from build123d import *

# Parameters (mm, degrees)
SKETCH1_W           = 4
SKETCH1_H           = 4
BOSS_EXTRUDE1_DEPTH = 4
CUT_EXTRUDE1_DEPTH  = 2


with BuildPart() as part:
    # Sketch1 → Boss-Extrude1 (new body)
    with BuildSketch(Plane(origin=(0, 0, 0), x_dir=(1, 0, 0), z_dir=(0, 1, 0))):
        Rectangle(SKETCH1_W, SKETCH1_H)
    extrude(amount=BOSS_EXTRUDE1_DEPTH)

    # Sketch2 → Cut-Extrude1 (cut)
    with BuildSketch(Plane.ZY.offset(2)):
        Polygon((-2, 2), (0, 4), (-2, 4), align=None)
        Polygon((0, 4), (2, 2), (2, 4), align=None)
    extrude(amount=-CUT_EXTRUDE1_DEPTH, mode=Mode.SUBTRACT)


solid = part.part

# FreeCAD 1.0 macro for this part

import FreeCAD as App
import Part
import Sketcher

V = App.Vector


def add_polygon(sketch, points):
    """Adds a closed chain of lines whose ends are joined by coincident constraints."""
    first, n = sketch.GeometryCount, len(points)
    for a, b in zip(points, points[1:] + points[:1]):
        sketch.addGeometry(Part.LineSegment(App.Vector(*a, 0), App.Vector(*b, 0)), False)
    for i in range(n):
        sketch.addConstraint(Sketcher.Constraint("Coincident", first + i, 2, first + (i + 1) % n, 1))

doc = App.newDocument("Part")
body = doc.addObject("PartDesign::Body", "Body")

sketch1 = doc.addObject("Sketcher::SketchObject", "Sketch")
body.addObject(sketch1)
sketch1.AttachmentSupport = (doc.XZ_Plane, [""])
sketch1.MapMode = "FlatFace"
add_polygon(sketch1, [(-2, -2), (-2, 2), (2, 2), (2, -2)])
sketch1.addConstraint([
    Sketcher.Constraint("Vertical", 0),
    Sketcher.Constraint("Horizontal", 1),
    Sketcher.Constraint("Vertical", 2),
    Sketcher.Constraint("Horizontal", 3),
    Sketcher.Constraint("Symmetric", 0, 2, 2, 2, -1, 1),
    Sketcher.Constraint("Equal", 3, 0),
    Sketcher.Constraint("DistanceX", 1, 1, 1, 2, 4.0),
])
pad1 = doc.addObject("PartDesign::Pad", "Pad")
body.addObject(pad1)
pad1.Profile = sketch1
pad1.Length = 4
pad1.Reversed = True

sketch2 = doc.addObject("Sketcher::SketchObject", "Sketch001")
body.addObject(sketch2)
sketch2.AttachmentSupport = (doc.YZ_Plane, [""])
sketch2.MapMode = "FlatFace"
sketch2.AttachmentOffset = App.Placement(V(0, 0, -2), App.Rotation())
add_polygon(sketch2, [(2, -2), (4, 0), (4, -2)])
add_polygon(sketch2, [(4, 0), (2, 2), (4, 2)])
sketch2.addConstraint([
    Sketcher.Constraint("Vertical", 1),
    Sketcher.Constraint("Horizontal", 2),
    Sketcher.Constraint("Horizontal", 4),
    Sketcher.Constraint("Vertical", 5),
    Sketcher.Constraint("Coincident", 5, 2, 0, 2),
    Sketcher.Constraint("Symmetric", 2, 2, 3, 2, -1),
    Sketcher.Constraint("PointOnObject", 0, 2, -1),
    Sketcher.Constraint("Perpendicular", 0, 3),
    Sketcher.Constraint("DistanceX", 2, 2, 2, 1, 2.0),
    Sketcher.Constraint("DistanceX", -1, 1, 0, 2, 4.0),
])
pocket1 = doc.addObject("PartDesign::Pocket", "Pocket")
body.addObject(pocket1)
pocket1.Profile = sketch2
pocket1.Length = 2
pocket1.Reversed = True

doc.recompute()
